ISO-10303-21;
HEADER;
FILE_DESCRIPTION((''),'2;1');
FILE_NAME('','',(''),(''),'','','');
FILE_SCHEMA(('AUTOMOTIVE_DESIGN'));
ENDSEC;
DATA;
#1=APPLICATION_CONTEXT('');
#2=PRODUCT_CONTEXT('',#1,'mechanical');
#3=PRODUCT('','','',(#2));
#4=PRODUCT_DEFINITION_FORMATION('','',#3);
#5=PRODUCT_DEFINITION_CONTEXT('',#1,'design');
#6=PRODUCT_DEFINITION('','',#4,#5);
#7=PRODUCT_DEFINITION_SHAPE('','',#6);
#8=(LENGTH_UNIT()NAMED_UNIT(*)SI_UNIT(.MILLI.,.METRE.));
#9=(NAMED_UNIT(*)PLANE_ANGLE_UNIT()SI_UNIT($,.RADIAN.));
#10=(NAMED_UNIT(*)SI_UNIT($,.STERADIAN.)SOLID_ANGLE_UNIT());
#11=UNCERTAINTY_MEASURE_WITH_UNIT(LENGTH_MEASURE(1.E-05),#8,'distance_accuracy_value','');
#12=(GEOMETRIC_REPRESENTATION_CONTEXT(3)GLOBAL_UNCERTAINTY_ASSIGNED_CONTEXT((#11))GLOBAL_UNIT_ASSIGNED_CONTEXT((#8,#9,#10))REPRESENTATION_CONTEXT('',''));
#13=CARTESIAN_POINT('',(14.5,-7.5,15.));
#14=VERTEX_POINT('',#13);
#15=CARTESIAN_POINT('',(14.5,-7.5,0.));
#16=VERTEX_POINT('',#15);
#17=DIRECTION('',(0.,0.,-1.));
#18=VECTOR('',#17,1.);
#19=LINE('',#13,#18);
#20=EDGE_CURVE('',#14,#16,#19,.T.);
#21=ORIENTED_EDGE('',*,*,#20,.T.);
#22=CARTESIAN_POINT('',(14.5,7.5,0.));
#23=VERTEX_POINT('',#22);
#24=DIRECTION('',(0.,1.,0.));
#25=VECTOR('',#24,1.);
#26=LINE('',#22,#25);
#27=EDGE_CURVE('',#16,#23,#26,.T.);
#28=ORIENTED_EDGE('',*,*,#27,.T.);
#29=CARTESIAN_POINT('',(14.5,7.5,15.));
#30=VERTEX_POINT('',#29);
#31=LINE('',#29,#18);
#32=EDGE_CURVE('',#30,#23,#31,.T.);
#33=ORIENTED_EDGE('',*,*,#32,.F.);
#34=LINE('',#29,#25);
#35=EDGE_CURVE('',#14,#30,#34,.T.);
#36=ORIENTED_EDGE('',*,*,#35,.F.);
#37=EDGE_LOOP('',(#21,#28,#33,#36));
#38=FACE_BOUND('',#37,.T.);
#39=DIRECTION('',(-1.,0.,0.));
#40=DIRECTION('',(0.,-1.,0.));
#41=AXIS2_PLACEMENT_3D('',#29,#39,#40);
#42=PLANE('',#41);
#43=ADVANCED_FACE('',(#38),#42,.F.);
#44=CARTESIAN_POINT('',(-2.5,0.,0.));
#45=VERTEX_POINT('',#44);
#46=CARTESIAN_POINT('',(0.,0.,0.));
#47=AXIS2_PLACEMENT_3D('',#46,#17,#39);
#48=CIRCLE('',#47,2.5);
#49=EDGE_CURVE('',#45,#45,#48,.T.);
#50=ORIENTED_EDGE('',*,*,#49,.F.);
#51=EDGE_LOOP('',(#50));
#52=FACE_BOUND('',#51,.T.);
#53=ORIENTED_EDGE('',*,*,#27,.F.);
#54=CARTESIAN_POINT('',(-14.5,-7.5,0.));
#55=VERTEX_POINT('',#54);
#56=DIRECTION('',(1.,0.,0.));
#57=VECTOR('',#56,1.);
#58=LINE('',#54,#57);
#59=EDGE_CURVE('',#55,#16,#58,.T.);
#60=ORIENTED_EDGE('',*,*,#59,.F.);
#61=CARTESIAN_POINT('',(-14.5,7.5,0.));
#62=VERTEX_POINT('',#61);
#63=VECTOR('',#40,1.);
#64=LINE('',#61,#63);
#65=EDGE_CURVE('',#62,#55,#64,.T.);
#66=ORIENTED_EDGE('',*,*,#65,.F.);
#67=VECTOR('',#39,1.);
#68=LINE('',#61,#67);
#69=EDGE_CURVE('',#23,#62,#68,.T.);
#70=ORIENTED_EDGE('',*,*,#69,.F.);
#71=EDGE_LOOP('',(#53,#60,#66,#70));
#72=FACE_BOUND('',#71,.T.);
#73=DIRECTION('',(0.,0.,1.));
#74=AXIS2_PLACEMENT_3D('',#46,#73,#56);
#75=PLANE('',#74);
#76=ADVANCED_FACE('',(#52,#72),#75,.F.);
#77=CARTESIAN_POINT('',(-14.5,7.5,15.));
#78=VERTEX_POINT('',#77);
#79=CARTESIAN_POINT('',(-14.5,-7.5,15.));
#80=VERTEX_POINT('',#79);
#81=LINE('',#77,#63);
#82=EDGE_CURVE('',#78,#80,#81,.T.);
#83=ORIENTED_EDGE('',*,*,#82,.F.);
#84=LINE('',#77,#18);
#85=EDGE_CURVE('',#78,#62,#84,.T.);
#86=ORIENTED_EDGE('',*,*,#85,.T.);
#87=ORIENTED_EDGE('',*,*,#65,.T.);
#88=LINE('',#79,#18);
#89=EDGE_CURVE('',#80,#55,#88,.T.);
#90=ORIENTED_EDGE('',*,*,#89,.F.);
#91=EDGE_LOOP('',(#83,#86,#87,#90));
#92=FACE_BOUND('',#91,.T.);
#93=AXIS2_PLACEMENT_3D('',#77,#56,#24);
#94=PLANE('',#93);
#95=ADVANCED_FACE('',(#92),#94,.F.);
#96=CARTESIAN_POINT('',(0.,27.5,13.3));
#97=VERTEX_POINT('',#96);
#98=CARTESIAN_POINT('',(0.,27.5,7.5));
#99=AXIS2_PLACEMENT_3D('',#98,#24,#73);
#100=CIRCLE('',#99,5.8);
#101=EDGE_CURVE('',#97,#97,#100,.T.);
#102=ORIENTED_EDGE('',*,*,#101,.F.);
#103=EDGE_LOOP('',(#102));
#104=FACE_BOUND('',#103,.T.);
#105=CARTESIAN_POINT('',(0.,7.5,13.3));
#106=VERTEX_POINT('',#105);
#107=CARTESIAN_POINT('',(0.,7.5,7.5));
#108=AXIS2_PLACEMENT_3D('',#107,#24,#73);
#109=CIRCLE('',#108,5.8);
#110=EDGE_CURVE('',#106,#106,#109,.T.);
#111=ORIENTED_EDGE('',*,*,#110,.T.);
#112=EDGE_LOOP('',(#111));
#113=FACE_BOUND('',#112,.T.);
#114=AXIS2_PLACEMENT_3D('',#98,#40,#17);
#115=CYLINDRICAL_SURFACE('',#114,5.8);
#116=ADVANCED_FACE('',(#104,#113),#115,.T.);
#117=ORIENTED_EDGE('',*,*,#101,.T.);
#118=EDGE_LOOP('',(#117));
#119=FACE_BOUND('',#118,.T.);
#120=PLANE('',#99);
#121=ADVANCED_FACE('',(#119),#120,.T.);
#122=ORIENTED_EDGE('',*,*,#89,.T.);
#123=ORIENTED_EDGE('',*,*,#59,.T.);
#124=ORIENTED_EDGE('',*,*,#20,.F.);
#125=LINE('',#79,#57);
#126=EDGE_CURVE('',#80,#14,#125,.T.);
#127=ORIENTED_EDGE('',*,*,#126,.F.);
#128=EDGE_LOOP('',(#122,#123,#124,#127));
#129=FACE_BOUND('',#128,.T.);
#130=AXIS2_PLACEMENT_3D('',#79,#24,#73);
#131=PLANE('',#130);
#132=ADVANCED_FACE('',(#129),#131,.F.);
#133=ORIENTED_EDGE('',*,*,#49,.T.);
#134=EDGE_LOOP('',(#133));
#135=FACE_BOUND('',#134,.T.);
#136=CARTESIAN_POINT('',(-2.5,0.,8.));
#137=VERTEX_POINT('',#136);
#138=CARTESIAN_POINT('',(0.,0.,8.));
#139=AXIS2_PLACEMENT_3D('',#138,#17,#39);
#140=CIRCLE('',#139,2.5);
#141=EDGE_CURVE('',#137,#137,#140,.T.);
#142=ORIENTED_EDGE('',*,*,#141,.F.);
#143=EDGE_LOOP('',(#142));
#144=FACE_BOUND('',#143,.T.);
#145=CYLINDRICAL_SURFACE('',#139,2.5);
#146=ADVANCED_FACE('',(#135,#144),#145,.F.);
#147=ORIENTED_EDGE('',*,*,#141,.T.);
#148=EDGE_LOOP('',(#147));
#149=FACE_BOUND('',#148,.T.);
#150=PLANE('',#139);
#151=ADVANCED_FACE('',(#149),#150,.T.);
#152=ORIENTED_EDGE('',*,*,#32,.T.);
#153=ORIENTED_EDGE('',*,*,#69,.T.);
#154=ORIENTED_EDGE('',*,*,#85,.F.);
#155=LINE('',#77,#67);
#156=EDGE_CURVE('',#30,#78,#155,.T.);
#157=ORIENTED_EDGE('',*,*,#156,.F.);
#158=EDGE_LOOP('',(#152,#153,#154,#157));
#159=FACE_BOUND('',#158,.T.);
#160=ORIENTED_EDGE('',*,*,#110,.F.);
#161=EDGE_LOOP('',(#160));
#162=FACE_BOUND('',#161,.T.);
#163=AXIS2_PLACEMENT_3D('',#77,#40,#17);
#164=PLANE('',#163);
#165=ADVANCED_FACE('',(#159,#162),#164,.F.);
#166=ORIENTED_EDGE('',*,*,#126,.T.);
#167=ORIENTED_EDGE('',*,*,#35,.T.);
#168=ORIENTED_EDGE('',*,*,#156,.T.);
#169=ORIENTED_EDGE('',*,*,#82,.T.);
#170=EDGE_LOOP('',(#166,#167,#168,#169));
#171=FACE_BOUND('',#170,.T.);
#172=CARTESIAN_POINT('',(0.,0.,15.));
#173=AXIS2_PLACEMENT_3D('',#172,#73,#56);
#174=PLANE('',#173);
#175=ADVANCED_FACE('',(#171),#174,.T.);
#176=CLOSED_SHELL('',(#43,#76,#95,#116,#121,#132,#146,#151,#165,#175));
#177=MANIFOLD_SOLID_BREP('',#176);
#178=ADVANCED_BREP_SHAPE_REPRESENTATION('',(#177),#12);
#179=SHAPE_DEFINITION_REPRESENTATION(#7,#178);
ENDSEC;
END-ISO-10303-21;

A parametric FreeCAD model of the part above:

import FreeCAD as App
import Part
import Sketcher


def add_polygon(sketch, points):
    """Adds a closed chain of lines whose ends are joined by coincident constraints."""
    first, n = sketch.GeometryCount, len(points)
    for a, b in zip(points, points[1:] + points[:1]):
        sketch.addGeometry(Part.LineSegment(App.Vector(*a, 0), App.Vector(*b, 0)), False)
    for i in range(n):
        sketch.addConstraint(Sketcher.Constraint("Coincident", first + i, 2, first + (i + 1) % n, 1))

doc = App.newDocument("Part")
body = doc.addObject("PartDesign::Body", "Body")

sketch1 = body.newObject("Sketcher::SketchObject", "Sketch")
sketch1.AttachmentSupport = (doc.getObject("XY_Plane"), [""])
sketch1.MapMode = "FlatFace"
add_polygon(sketch1, [(-14.5, 7.5), (-14.5, -7.5), (14.5, -7.5), (14.5, 7.5)])
sketch1.addConstraint(Sketcher.Constraint("Vertical", 0))
sketch1.addConstraint(Sketcher.Constraint("Horizontal", 1))
sketch1.addConstraint(Sketcher.Constraint("Vertical", 2))
sketch1.addConstraint(Sketcher.Constraint("Horizontal", 3))
sketch1.addConstraint(Sketcher.Constraint("Symmetric", 0, 2, 2, 2, -1, 1))
sketch1.addConstraint(Sketcher.Constraint("DistanceX", 1, 1, 1, 2, 29.0))
sketch1.addConstraint(Sketcher.Constraint("DistanceY", 0, 2, 0, 1, 15.0))
pad1 = body.newObject("PartDesign::Pad", "Pad")
pad1.Profile = sketch1
pad1.Length = 15

sketch2 = body.newObject("Sketcher::SketchObject", "Sketch001")
sketch2.AttachmentSupport = (doc.getObject("XZ_Plane"), [""])
sketch2.MapMode = "FlatFace"
sketch2.AttachmentOffset = App.Placement(App.Vector(0, 0, -7.5), App.Rotation())
sketch2.addGeometry(Part.Circle(App.Vector(0, 7.5, 0), App.Vector(0, 0, 1), 5.8), False)
sketch2.addConstraint(Sketcher.Constraint("PointOnObject", 0, 3, -2))
sketch2.addConstraint(Sketcher.Constraint("Diameter", 0, 11.6))
sketch2.addConstraint(Sketcher.Constraint("DistanceY", -1, 1, 0, 3, 7.5))
pad2 = body.newObject("PartDesign::Pad", "Pad001")
pad2.Profile = sketch2
pad2.Length = 20
pad2.Reversed = True

sketch3 = body.newObject("Sketcher::SketchObject", "Sketch002")
sketch3.AttachmentSupport = (doc.getObject("XY_Plane"), [""])
sketch3.MapMode = "FlatFace"
sketch3.addGeometry(Part.Circle(App.Vector(0, 0, 0), App.Vector(0, 0, 1), 2.5), False)
sketch3.addConstraint(Sketcher.Constraint("Coincident", 0, 3, -1, 1))
sketch3.addConstraint(Sketcher.Constraint("Diameter", 0, 5.0))
pocket1 = body.newObject("PartDesign::Pocket", "Pocket")
pocket1.Profile = sketch3
pocket1.Length = 8
pocket1.Reversed = True

doc.recompute()
